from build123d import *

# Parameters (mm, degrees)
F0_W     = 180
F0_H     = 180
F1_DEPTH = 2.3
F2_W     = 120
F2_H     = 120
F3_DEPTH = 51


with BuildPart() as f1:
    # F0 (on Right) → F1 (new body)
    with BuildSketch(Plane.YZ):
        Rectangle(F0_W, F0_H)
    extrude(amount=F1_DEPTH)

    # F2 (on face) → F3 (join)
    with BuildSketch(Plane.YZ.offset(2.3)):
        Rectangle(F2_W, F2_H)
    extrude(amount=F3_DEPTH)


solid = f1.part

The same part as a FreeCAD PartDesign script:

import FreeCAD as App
import Part
import Sketcher

V = App.Vector

doc = App.newDocument("Part")
body = doc.addObject("PartDesign::Body", "Body")

sketch1 = doc.addObject("Sketcher::SketchObject", "Sketch")
body.addObject(sketch1)
sketch1.AttachmentSupport = (doc.YZ_Plane, [""])
sketch1.MapMode = "FlatFace"
sketch1.addGeometry([
    Part.LineSegment(V(-90, 90, 0), V(-90, -90, 0)),
    Part.LineSegment(V(-90, -90, 0), V(90, -90, 0)),
    Part.LineSegment(V(90, -90, 0), V(90, 90, 0)),
    Part.LineSegment(V(90, 90, 0), V(-90, 90, 0)),
], False)
sketch1.addConstraint([
    Sketcher.Constraint("Coincident", 0, 2, 1, 1),
    Sketcher.Constraint("Coincident", 1, 2, 2, 1),
    Sketcher.Constraint("Coincident", 2, 2, 3, 1),
    Sketcher.Constraint("Coincident", 3, 2, 0, 1),
    Sketcher.Constraint("Vertical", 0),
    Sketcher.Constraint("Horizontal", 1),
    Sketcher.Constraint("Vertical", 2),
    Sketcher.Constraint("Horizontal", 3),
    Sketcher.Constraint("Symmetric", 0, 2, 2, 2, -1, 1),
    Sketcher.Constraint("Equal", 3, 0),
    Sketcher.Constraint("DistanceX", 1, 1, 1, 2, 180.0),
])
pad1 = doc.addObject("PartDesign::Pad", "Pad")
body.addObject(pad1)
pad1.Profile = sketch1
pad1.Length = 2.3

sketch2 = doc.addObject("Sketcher::SketchObject", "Sketch001")
body.addObject(sketch2)
sketch2.AttachmentSupport = (doc.YZ_Plane, [""])
sketch2.MapMode = "FlatFace"
sketch2.AttachmentOffset = App.Placement(V(0, 0, 2.3), App.Rotation())
sketch2.addGeometry([
    Part.LineSegment(V(-60, 60, 0), V(-60, -60, 0)),
    Part.LineSegment(V(-60, -60, 0), V(60, -60, 0)),
    Part.LineSegment(V(60, -60, 0), V(60, 60, 0)),
    Part.LineSegment(V(60, 60, 0), V(-60, 60, 0)),
], False)
sketch2.addConstraint([
    Sketcher.Constraint("Coincident", 0, 2, 1, 1),
    Sketcher.Constraint("Coincident", 1, 2, 2, 1),
    Sketcher.Constraint("Coincident", 2, 2, 3, 1),
    Sketcher.Constraint("Coincident", 3, 2, 0, 1),
    Sketcher.Constraint("Vertical", 0),
    Sketcher.Constraint("Horizontal", 1),
    Sketcher.Constraint("Vertical", 2),
    Sketcher.Constraint("Horizontal", 3),
    Sketcher.Constraint("Symmetric", 0, 2, 2, 2, -1, 1),
    Sketcher.Constraint("Equal", 3, 0),
    Sketcher.Constraint("DistanceX", 1, 1, 1, 2, 120.0),
])
pad2 = doc.addObject("PartDesign::Pad", "Pad001")
body.addObject(pad2)
pad2.Profile = sketch2
pad2.Length = 51

doc.recompute()
